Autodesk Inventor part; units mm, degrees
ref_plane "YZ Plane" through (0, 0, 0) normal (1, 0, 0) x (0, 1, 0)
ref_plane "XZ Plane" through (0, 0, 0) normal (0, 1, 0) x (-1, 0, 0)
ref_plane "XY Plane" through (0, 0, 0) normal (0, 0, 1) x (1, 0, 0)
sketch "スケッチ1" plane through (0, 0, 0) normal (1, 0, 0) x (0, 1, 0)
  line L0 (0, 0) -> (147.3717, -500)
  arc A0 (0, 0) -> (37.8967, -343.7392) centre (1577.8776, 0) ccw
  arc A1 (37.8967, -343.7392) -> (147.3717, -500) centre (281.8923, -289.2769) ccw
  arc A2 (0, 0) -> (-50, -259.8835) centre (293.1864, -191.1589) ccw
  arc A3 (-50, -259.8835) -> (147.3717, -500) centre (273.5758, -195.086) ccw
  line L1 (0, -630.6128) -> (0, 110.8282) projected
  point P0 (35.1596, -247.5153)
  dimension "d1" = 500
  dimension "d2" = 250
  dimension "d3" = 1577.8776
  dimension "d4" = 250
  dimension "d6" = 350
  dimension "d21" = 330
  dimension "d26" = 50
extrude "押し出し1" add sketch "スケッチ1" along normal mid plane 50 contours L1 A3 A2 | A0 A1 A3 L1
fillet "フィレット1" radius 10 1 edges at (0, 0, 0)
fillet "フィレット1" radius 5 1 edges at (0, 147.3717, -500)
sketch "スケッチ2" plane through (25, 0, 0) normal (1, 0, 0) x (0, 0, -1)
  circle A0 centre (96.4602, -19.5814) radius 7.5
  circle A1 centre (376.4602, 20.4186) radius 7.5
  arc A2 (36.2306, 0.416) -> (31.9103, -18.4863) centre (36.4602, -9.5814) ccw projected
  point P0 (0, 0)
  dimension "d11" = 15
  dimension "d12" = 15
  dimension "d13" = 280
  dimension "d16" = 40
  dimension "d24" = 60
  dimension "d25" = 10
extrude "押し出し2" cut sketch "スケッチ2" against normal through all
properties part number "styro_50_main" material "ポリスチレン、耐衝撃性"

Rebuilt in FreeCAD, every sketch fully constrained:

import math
import FreeCAD as App
import Part
import Sketcher
from FreeCAD import Vector
Q = App.Units.Quantity


def edges_at(feature, points):
    """Names of the edges that pass closest to the given points."""
    edges = feature.Shape.Edges
    near = lambda p: min(range(len(edges)), key=lambda i: edges[i].distToShape(Part.Vertex(*p))[0])
    return sorted({f"Edge{near(p) + 1}" for p in points})

doc = App.newDocument("Part")
body = doc.addObject("PartDesign::Body", "Body")

sketch1 = body.newObject("Sketcher::SketchObject", "Sketch")
sketch1.AttachmentSupport = (doc.getObject("YZ_Plane"), [""])
sketch1.MapMode = "FlatFace"
sketch1.addGeometry([
    Part.ArcOfCircle(Part.Circle(Vector(274, -195, 0), Vector(0, 0, 1), 330), math.radians(-169), math.radians(-112)),
    Part.ArcOfCircle(Part.Circle(Vector(282, -289, 0), Vector(0, 0, 1), 250), math.radians(-167), math.radians(-123)),
    Part.ArcOfCircle(Part.Circle(Vector(1578, 0, 0), Vector(0, 0, 1), 1578), math.radians(-180), math.radians(-167.42)),
    Part.ArcOfCircle(Part.Circle(Vector(293, -191, 0), Vector(0, 0, 1), 350), math.radians(147), math.radians(191)),
], False)
sketch1.addConstraint([
    Sketcher.Constraint("Coincident", 0, 2, 1, 2),
    Sketcher.Constraint("Tangent", 1, 1, 2, 2),
    Sketcher.Constraint("Coincident", 2, 1, 3, 1),
    Sketcher.Constraint("Tangent", 3, 2, 0, 1),
    Sketcher.Constraint("PointOnObject", 2, 3, -1),
    Sketcher.Constraint("Radius", 0, Q("330 mm")),
    Sketcher.Constraint("Radius", 1, Q("250 mm")),
    Sketcher.Constraint("Radius", 3, Q("350 mm")),
    Sketcher.Constraint("DistanceY", 0, 2, -1, 1, Q("500 mm")),
    Sketcher.Constraint("DistanceX", 3, 2, -1, 1, Q("50 mm")),
    Sketcher.Constraint("DistanceX", 3, 2, 2, 1, Q("50 mm")),
    Sketcher.Constraint("Radius", 2, Q("1577.88 mm")),
    Sketcher.Constraint("DistanceY", 0, 3, -1, 1, Q("195.086 mm")),
    Sketcher.Constraint("DistanceY", 1, 3, -1, 1, Q("289.277 mm")),
])
pad1 = body.newObject("PartDesign::Pad", "Pad")
pad1.Profile = sketch1
pad1.Length = 50
pad1.Midplane = True
doc.recompute()

fillet = body.newObject("PartDesign::Fillet", "Fillet")
fillet.Base = (pad1, edges_at(pad1, [(0, 0, 0)]))
fillet.Radius = 10
doc.recompute()

fillet2 = body.newObject("PartDesign::Fillet", "Fillet001")
fillet2.Base = (fillet, edges_at(fillet, [(0, 147.372, -500)]))
fillet2.Radius = 5

sketch2 = body.newObject("Sketcher::SketchObject", "Sketch001")
sketch2.AttachmentSupport = (doc.getObject("YZ_Plane"), [""])
sketch2.MapMode = "FlatFace"
sketch2.AttachmentOffset = App.Placement(Vector(0, 0, 25), App.Rotation())
sketch2.addGeometry([
    Part.Circle(Vector(-20, -96, 0), Vector(0, 0, 1), 8),
    Part.Circle(Vector(20, -376, 0), Vector(0, 0, 1), 8),
], False)
sketch2.addConstraint([
    Sketcher.Constraint("Equal", 0, 1),
    Sketcher.Constraint("Diameter", 0, Q("15 mm")),
    Sketcher.Constraint("DistanceX", 0, 3, 1, 3, Q("40 mm")),
    Sketcher.Constraint("DistanceY", 1, 3, 0, 3, Q("280 mm")),
    Sketcher.Constraint("DistanceX", 0, 3, -1, 1, Q("19.5814 mm")),
    Sketcher.Constraint("DistanceY", 0, 3, -1, 1, Q("96.4602 mm")),
])
pocket1 = body.newObject("PartDesign::Pocket", "Pocket")
pocket1.Profile = sketch2
pocket1.Type = "ThroughAll"

doc.recompute()
